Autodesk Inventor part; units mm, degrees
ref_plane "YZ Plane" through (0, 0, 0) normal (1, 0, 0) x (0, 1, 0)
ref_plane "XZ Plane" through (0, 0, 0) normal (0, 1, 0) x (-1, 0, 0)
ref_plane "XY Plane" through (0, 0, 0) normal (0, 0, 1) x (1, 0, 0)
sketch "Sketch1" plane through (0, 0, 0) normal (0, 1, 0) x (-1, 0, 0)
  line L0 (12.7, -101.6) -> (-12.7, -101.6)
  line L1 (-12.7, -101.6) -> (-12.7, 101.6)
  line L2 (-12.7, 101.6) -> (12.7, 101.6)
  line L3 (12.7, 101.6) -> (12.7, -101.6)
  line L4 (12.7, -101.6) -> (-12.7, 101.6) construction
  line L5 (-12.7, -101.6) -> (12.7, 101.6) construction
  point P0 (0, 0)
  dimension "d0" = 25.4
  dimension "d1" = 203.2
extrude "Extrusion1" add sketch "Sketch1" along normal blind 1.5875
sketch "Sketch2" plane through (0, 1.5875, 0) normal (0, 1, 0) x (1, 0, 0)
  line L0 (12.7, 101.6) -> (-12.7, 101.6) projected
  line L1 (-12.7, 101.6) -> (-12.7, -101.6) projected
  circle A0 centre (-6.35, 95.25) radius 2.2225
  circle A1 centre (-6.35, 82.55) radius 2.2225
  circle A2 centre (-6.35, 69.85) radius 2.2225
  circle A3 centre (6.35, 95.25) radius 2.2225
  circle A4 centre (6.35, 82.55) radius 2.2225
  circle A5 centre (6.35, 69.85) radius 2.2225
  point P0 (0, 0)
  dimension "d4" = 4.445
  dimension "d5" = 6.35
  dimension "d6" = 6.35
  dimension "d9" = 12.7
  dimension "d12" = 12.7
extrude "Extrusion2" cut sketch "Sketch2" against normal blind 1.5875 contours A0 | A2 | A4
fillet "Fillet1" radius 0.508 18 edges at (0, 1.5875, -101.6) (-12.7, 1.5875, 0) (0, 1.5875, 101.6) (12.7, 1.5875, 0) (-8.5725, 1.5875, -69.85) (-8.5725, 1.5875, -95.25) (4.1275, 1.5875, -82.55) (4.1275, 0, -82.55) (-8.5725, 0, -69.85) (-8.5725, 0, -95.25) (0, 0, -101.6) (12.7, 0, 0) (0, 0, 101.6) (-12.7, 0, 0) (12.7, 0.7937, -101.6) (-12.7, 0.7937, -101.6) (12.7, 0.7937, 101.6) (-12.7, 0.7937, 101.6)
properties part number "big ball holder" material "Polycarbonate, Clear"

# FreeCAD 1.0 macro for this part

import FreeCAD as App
import Part
import Sketcher
Q = App.Units.Quantity


def add_polygon(sketch, points):
    """Adds a closed chain of lines whose ends are joined by coincident constraints."""
    first, n = sketch.GeometryCount, len(points)
    for a, b in zip(points, points[1:] + points[:1]):
        sketch.addGeometry(Part.LineSegment(App.Vector(*a, 0), App.Vector(*b, 0)), False)
    for i in range(n):
        sketch.addConstraint(Sketcher.Constraint("Coincident", first + i, 2, first + (i + 1) % n, 1))

doc = App.newDocument("Part")
params = doc.addObject("Spreadsheet::Sheet", "Params")
for row, (alias, value) in enumerate([
    ("sketch1_width", "1 in"),
    ("sketch1_height", "8 in"),
    ("pad1_length", "0.0625 in"),
    ("sketch2_diameter", "0.175 in"),
    ("pocket1_length", "0.0625 in"),
    ("fillet_radius", "0.02 in"),
], start=1):
    params.set(f"A{row}", alias)
    params.set(f"B{row}", "=" + value)
    params.setAlias(f"B{row}", alias)

body = doc.addObject("PartDesign::Body", "Body")

sketch1 = doc.addObject("Sketcher::SketchObject", "Sketch")
body.addObject(sketch1)
sketch1.AttachmentSupport = (doc.XZ_Plane, [""])
sketch1.MapMode = "FlatFace"
add_polygon(sketch1, [(12.7, -101.6), (-12.7, -101.6), (-12.7, 101.6), (12.7, 101.6)])
sketch1.addConstraint(Sketcher.Constraint("Horizontal", 0))
sketch1.addConstraint(Sketcher.Constraint("Vertical", 1))
sketch1.addConstraint(Sketcher.Constraint("Horizontal", 2))
sketch1.addConstraint(Sketcher.Constraint("Vertical", 3))
sketch1.addConstraint(Sketcher.Constraint("Symmetric", 0, 2, 2, 2, -1, 1))
sketch1.addConstraint(Sketcher.Constraint("DistanceX", 0, 2, 0, 1, Q("1 in")))
sketch1.addConstraint(Sketcher.Constraint("DistanceY", 1, 1, 1, 2, Q("8 in")))
sketch1.setExpression("Constraints[9]", "Params.sketch1_width")
sketch1.setExpression("Constraints[10]", "Params.sketch1_height")
pad1 = doc.addObject("PartDesign::Pad", "Pad")
body.addObject(pad1)
pad1.Profile = sketch1
pad1.setExpression("Length", "Params.pad1_length")
pad1.Reversed = True

sketch2 = doc.addObject("Sketcher::SketchObject", "Sketch001")
body.addObject(sketch2)
sketch2.AttachmentSupport = (doc.XZ_Plane, [""])
sketch2.MapMode = "FlatFace"
sketch2.AttachmentOffset = App.Placement(App.Vector(0, 0, -0.0625 * 25.4), App.Rotation())
sketch2.addGeometry(Part.Circle(App.Vector(-6.35, -95.25, 0), App.Vector(0, 0, 1), 2.2225), False)
sketch2.addGeometry(Part.Circle(App.Vector(-6.35, -69.85, 0), App.Vector(0, 0, 1), 2.2225), False)
sketch2.addGeometry(Part.Circle(App.Vector(6.35, -82.55, 0), App.Vector(0, 0, 1), 2.2225), False)
sketch2.addConstraint(Sketcher.Constraint("Equal", 0, 1))
sketch2.addConstraint(Sketcher.Constraint("Equal", 1, 2))
sketch2.addConstraint(Sketcher.Constraint("Vertical", 0, 3, 1, 3))
sketch2.addConstraint(Sketcher.Constraint("Diameter", 0, Q("0.175 in")))
sketch2.addConstraint(Sketcher.Constraint("DistanceX", 0, 3, 2, 3, Q("0.5 in")))
sketch2.addConstraint(Sketcher.Constraint("DistanceY", 0, 3, 2, 3, Q("0.5 in")))
sketch2.addConstraint(Sketcher.Constraint("DistanceY", 2, 3, 1, 3, Q("0.5 in")))
sketch2.addConstraint(Sketcher.Constraint("DistanceX", 0, 3, -1, 1, Q("0.25 in")))
sketch2.addConstraint(Sketcher.Constraint("DistanceY", 0, 3, -1, 1, Q("3.75 in")))
sketch2.setExpression("Constraints[3]", "Params.sketch2_diameter")
pocket1 = doc.addObject("PartDesign::Pocket", "Pocket")
body.addObject(pocket1)
pocket1.Profile = sketch2
pocket1.setExpression("Length", "Params.pocket1_length")
pocket1.Reversed = True
doc.recompute()

fillet = doc.addObject("PartDesign::Fillet", "Fillet")
body.addObject(fillet)
fillet.Base = (pocket1, ["Edge1"])
fillet.UseAllEdges = True
fillet.setExpression("Radius", "Params.fillet_radius")

doc.recompute()
